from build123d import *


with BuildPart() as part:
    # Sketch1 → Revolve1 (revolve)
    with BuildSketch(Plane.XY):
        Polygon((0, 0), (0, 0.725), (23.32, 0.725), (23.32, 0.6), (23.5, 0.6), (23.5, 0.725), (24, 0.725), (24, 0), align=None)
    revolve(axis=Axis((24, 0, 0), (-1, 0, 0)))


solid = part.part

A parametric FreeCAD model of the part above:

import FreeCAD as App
import Part
import Sketcher

V = App.Vector
Q = App.Units.Quantity


def add_polygon(sketch, points):
    """Adds a closed chain of lines whose ends are joined by coincident constraints."""
    first, n = sketch.GeometryCount, len(points)
    for a, b in zip(points, points[1:] + points[:1]):
        sketch.addGeometry(Part.LineSegment(App.Vector(*a, 0), App.Vector(*b, 0)), False)
    for i in range(n):
        sketch.addConstraint(Sketcher.Constraint("Coincident", first + i, 2, first + (i + 1) % n, 1))

doc = App.newDocument("Part")
params = doc.addObject("Spreadsheet::Sheet", "Params")
for row, (alias, value) in enumerate([
    ("sketch1_width", "24 mm"),
    ("sketch1_width2", "0.5 mm"),
    ("sketch1_width3", "0.18 mm"),
    ("revolution_angle", "360 deg"),
], start=1):
    params.set(f"A{row}", alias)
    params.set(f"B{row}", "=" + value)
    params.setAlias(f"B{row}", alias)

body = doc.addObject("PartDesign::Body", "Body")

# Sketch on XY plane
sketch1 = doc.addObject("Sketcher::SketchObject", "Sketch")
body.addObject(sketch1)
sketch1.AttachmentSupport = (doc.XY_Plane, [""])
sketch1.MapMode = "FlatFace"
add_polygon(sketch1, [(0, 0.72), (0, 0), (24, 0), (24, 0.72), (23.5, 0.72), (23.5, 0.6), (23.32, 0.6), (23.32, 0.72)])  # lines 0-7
sketch1.addConstraint(Sketcher.Constraint("Vertical", 0))
sketch1.addConstraint(Sketcher.Constraint("Horizontal", 1))
sketch1.addConstraint(Sketcher.Constraint("Vertical", 2))
sketch1.addConstraint(Sketcher.Constraint("Horizontal", 3))
sketch1.addConstraint(Sketcher.Constraint("Vertical", 4))
sketch1.addConstraint(Sketcher.Constraint("Horizontal", 5))
sketch1.addConstraint(Sketcher.Constraint("Vertical", 6))
sketch1.addConstraint(Sketcher.Constraint("Horizontal", 7))
sketch1.addConstraint(Sketcher.Constraint("Coincident", 0, 2, -1, 1))
sketch1.addConstraint(Sketcher.Constraint("Horizontal", 3, 2, 6, 2))
sketch1.addConstraint(Sketcher.Constraint("DistanceX", 1, 1, 1, 2, Q("24 mm")))
sketch1.addConstraint(Sketcher.Constraint("DistanceX", 3, 2, 3, 1, Q("0.5 mm")))
sketch1.addConstraint(Sketcher.Constraint("DistanceX", 5, 2, 5, 1, Q("0.18 mm")))
sketch1.addConstraint(Sketcher.Constraint("DistanceY", -1, 1, 4, 2, Q("0.6 mm")))
sketch1.addConstraint(Sketcher.Constraint("DistanceY", 0, 2, 0, 1, Q("0.725 mm")))
sketch1.setExpression("Constraints[18]", "Params.sketch1_width")
sketch1.setExpression("Constraints[19]", "Params.sketch1_width2")
sketch1.setExpression("Constraints[20]", "Params.sketch1_width3")
revolution = doc.addObject("PartDesign::Revolution", "Revolution")
body.addObject(revolution)
revolution.Profile = sketch1
revolution.ReferenceAxis = (sketch1, ["H_Axis"])
revolution.setExpression("Angle", "Params.revolution_angle")

doc.recompute()
